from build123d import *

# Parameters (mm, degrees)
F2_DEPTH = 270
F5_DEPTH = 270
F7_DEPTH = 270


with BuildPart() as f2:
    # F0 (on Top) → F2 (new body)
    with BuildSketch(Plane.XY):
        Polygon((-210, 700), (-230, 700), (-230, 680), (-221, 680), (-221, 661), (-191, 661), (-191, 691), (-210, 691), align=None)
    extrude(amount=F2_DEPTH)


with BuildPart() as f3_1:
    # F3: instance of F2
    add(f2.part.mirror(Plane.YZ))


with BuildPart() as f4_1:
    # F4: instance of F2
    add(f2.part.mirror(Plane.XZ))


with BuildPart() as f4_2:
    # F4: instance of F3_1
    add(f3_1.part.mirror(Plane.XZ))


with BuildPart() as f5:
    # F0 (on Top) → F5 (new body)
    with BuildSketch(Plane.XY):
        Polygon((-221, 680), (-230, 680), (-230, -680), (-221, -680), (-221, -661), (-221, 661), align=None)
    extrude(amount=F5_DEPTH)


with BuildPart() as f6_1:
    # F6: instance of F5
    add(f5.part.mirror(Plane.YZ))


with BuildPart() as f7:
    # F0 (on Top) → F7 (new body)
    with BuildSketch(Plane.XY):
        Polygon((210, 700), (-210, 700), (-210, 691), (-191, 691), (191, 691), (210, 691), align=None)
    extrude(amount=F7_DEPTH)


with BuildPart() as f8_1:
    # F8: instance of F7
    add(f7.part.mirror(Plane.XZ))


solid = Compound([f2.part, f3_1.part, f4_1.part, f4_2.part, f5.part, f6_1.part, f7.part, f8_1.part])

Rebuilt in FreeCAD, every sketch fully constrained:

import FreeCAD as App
import Part
import Sketcher
from FreeCAD import Vector
Q = App.Units.Quantity


def add_polygon(sketch, points):
    """Adds a closed chain of lines whose ends are joined by coincident constraints."""
    first, n = sketch.GeometryCount, len(points)
    for a, b in zip(points, points[1:] + points[:1]):
        sketch.addGeometry(Part.LineSegment(App.Vector(*a, 0), App.Vector(*b, 0)), False)
    for i in range(n):
        sketch.addConstraint(Sketcher.Constraint("Coincident", first + i, 2, first + (i + 1) % n, 1))

doc = App.newDocument("Part")
body = doc.addObject("PartDesign::Body", "Body")

sketch1 = body.newObject("Sketcher::SketchObject", "Sketch")
sketch1.AttachmentSupport = (doc.getObject("XY_Plane"), [""])
sketch1.MapMode = "FlatFace"
add_polygon(sketch1, [(-210, 700), (-230, 700), (-230, 680), (-221, 680), (-221, 661), (-191, 661), (-191, 691), (-210, 691)])
sketch1.addConstraint(Sketcher.Constraint("Horizontal", 0))
sketch1.addConstraint(Sketcher.Constraint("Vertical", 1))
sketch1.addConstraint(Sketcher.Constraint("Horizontal", 2))
sketch1.addConstraint(Sketcher.Constraint("Vertical", 3))
sketch1.addConstraint(Sketcher.Constraint("Horizontal", 4))
sketch1.addConstraint(Sketcher.Constraint("Vertical", 5))
sketch1.addConstraint(Sketcher.Constraint("Horizontal", 6))
sketch1.addConstraint(Sketcher.Constraint("Vertical", 7))
sketch1.addConstraint(Sketcher.Constraint("Equal", 0, 1))
sketch1.addConstraint(Sketcher.Constraint("Equal", 6, 3))
sketch1.addConstraint(Sketcher.Constraint("Equal", 4, 5))
sketch1.addConstraint(Sketcher.Constraint("DistanceX", 0, 2, 0, 1, Q("20 mm")))
sketch1.addConstraint(Sketcher.Constraint("DistanceX", 2, 1, 2, 2, Q("9 mm")))
sketch1.addConstraint(Sketcher.Constraint("DistanceX", 4, 1, 4, 2, Q("30 mm")))
sketch1.addConstraint(Sketcher.Constraint("DistanceX", 0, 2, -1, 1, Q("230 mm")))
sketch1.addConstraint(Sketcher.Constraint("DistanceY", -1, 1, 0, 2, Q("700 mm")))
pad1 = body.newObject("PartDesign::Pad", "Pad")
pad1.Profile = sketch1
pad1.Length = 270
body2 = doc.addObject("PartDesign::Body", "Body001")
doc.recompute()

mirroring = doc.addObject("Part::Mirroring", "Mirroring")
mirroring.Source = body
mirroring.Base = Vector(0, 0, 0)
mirroring.Normal = Vector(1, 0, 0)
body2.BaseFeature = mirroring
doc.recompute()
body3 = doc.addObject("PartDesign::Body", "Body002")
doc.recompute()

mirroring2 = doc.addObject("Part::Mirroring", "Mirroring001")
mirroring2.Source = body
mirroring2.Base = Vector(0, 0, 0)
mirroring2.Normal = Vector(0, -1, 0)
body3.BaseFeature = mirroring2
doc.recompute()
body4 = doc.addObject("PartDesign::Body", "Body003")
doc.recompute()

mirroring3 = doc.addObject("Part::Mirroring", "Mirroring002")
mirroring3.Source = body2
mirroring3.Base = Vector(0, 0, 0)
mirroring3.Normal = Vector(0, -1, 0)
body4.BaseFeature = mirroring3
doc.recompute()
body5 = doc.addObject("PartDesign::Body", "Body004")

sketch2 = body5.newObject("Sketcher::SketchObject", "Sketch001")
sketch2.AttachmentSupport = (doc.getObject("XY_Plane004"), [""])
sketch2.MapMode = "FlatFace"
add_polygon(sketch2, [(-221, 680), (-230, 680), (-230, -680), (-221, -680)])
sketch2.addConstraint(Sketcher.Constraint("Horizontal", 0))
sketch2.addConstraint(Sketcher.Constraint("Vertical", 1))
sketch2.addConstraint(Sketcher.Constraint("Horizontal", 2))
sketch2.addConstraint(Sketcher.Constraint("Vertical", 3))
sketch2.addConstraint(Sketcher.Constraint("DistanceX", 0, 2, 0, 1, Q("9 mm")))
sketch2.addConstraint(Sketcher.Constraint("DistanceY", 1, 2, 1, 1, Q("1360 mm")))
sketch2.addConstraint(Sketcher.Constraint("DistanceX", 0, 2, -1, 1, Q("230 mm")))
sketch2.addConstraint(Sketcher.Constraint("DistanceY", -1, 1, 0, 2, Q("680 mm")))
pad2 = body5.newObject("PartDesign::Pad", "Pad001")
pad2.Profile = sketch2
pad2.Length = 270
body6 = doc.addObject("PartDesign::Body", "Body005")
doc.recompute()

mirroring4 = doc.addObject("Part::Mirroring", "Mirroring003")
mirroring4.Source = body5
mirroring4.Base = Vector(0, 0, 0)
mirroring4.Normal = Vector(1, 0, 0)
body6.BaseFeature = mirroring4
doc.recompute()
body7 = doc.addObject("PartDesign::Body", "Body006")

sketch3 = body7.newObject("Sketcher::SketchObject", "Sketch002")
sketch3.AttachmentSupport = (doc.getObject("XY_Plane006"), [""])
sketch3.MapMode = "FlatFace"
add_polygon(sketch3, [(210, 700), (-210, 700), (-210, 691), (210, 691)])
sketch3.addConstraint(Sketcher.Constraint("Horizontal", 0))
sketch3.addConstraint(Sketcher.Constraint("Vertical", 1))
sketch3.addConstraint(Sketcher.Constraint("Horizontal", 2))
sketch3.addConstraint(Sketcher.Constraint("Vertical", 3))
sketch3.addConstraint(Sketcher.Constraint("DistanceX", 0, 2, 0, 1, Q("420 mm")))
sketch3.addConstraint(Sketcher.Constraint("DistanceY", 1, 2, 1, 1, Q("9 mm")))
sketch3.addConstraint(Sketcher.Constraint("DistanceX", 0, 2, -1, 1, Q("210 mm")))
sketch3.addConstraint(Sketcher.Constraint("DistanceY", -1, 1, 0, 2, Q("700 mm")))
pad3 = body7.newObject("PartDesign::Pad", "Pad002")
pad3.Profile = sketch3
pad3.Length = 270
body8 = doc.addObject("PartDesign::Body", "Body007")
doc.recompute()

mirroring5 = doc.addObject("Part::Mirroring", "Mirroring004")
mirroring5.Source = body7
mirroring5.Base = Vector(0, 0, 0)
mirroring5.Normal = Vector(0, -1, 0)
body8.BaseFeature = mirroring5
doc.recompute()
mirroring.Visibility = False
mirroring2.Visibility = False
mirroring3.Visibility = False
mirroring4.Visibility = False
mirroring5.Visibility = False

doc.recompute()
